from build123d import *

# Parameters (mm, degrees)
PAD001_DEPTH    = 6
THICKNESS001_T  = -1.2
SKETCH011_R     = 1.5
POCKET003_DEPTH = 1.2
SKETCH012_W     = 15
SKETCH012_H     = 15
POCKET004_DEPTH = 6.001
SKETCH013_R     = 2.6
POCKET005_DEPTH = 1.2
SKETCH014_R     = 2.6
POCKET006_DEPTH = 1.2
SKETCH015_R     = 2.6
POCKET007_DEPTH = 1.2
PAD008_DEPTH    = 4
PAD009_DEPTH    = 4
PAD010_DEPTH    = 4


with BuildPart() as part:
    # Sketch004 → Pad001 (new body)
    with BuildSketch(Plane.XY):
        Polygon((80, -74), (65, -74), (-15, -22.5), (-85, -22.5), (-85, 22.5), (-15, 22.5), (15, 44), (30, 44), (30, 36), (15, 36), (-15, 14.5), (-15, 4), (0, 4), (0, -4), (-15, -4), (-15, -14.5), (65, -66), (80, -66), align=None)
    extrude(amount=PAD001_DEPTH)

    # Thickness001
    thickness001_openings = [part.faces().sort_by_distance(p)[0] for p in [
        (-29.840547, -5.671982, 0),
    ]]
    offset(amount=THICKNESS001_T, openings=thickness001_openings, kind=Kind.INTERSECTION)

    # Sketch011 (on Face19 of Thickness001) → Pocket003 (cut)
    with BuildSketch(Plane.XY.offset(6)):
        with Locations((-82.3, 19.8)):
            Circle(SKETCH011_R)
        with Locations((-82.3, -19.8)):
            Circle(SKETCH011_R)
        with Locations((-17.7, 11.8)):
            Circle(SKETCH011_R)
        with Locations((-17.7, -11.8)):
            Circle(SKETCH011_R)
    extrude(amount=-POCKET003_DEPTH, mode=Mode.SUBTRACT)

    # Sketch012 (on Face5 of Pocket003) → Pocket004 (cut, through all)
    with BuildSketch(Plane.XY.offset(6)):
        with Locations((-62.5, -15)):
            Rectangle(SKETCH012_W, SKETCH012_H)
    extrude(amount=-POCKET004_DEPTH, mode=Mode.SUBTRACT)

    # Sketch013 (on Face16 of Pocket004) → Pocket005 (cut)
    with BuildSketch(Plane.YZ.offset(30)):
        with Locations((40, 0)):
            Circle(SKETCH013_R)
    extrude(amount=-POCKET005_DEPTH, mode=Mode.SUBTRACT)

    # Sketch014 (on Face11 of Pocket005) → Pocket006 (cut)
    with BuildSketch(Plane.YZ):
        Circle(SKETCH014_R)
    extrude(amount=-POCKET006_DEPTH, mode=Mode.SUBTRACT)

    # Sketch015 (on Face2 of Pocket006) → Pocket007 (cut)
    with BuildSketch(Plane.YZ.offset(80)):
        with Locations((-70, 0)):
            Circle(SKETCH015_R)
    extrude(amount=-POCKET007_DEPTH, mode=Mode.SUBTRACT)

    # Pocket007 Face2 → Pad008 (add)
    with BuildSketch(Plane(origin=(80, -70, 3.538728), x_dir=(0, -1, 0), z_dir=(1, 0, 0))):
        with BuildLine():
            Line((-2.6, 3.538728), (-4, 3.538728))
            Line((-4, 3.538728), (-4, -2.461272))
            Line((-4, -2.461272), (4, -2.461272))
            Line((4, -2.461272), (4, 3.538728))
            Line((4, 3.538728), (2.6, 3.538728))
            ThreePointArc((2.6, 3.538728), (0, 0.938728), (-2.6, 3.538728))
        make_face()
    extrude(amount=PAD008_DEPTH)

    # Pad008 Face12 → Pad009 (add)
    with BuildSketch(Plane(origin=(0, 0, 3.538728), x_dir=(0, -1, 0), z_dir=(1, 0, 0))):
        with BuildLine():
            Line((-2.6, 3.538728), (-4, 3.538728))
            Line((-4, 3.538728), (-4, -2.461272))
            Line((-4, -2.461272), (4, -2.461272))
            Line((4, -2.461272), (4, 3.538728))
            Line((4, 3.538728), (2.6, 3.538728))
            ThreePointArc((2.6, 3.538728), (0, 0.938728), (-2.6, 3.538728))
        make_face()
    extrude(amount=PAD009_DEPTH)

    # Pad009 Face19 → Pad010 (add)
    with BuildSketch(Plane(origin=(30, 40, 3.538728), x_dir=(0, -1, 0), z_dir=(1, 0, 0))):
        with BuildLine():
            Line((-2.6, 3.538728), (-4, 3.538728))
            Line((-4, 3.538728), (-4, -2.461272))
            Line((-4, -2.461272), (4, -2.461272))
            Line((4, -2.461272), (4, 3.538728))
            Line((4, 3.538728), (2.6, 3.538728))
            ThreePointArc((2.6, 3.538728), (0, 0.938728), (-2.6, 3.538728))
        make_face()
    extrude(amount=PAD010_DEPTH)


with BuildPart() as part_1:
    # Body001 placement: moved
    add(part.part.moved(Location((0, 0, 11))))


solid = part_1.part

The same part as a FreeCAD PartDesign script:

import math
import FreeCAD as App
import Part
import Sketcher

V = App.Vector


def faces_at(feature, points):
    """Names of the faces that lie closest to the given points."""
    faces = feature.Shape.Faces
    near = lambda p: min(range(len(faces)), key=lambda i: faces[i].distToShape(Part.Vertex(*p))[0])
    return sorted({f"Face{near(p) + 1}" for p in points})

doc = App.newDocument("Part")
body = doc.addObject("PartDesign::Body", "Body")

# Sketch on XY plane
sketch1 = doc.addObject("Sketcher::SketchObject", "Sketch")
body.addObject(sketch1)
sketch1.AttachmentSupport = (doc.XY_Plane, [""])
sketch1.MapMode = "FlatFace"
sketch1.addGeometry(Part.LineSegment(V(65, -74, 0), V(80, -74, 0)), False)
sketch1.addGeometry(Part.LineSegment(V(80, -74, 0), V(80, -66, 0)), False)
sketch1.addGeometry(Part.LineSegment(V(80, -66, 0), V(65, -66, 0)), False)
sketch1.addGeometry(Part.LineSegment(V(65, -66, 0), V(-15, -14, 0)), False)
sketch1.addGeometry(Part.LineSegment(V(-15, -14, 0), V(-15, -4, 0)), False)
sketch1.addGeometry(Part.LineSegment(V(-15, -4, 0), V(0, -4, 0)), False)
sketch1.addGeometry(Part.LineSegment(V(0, -4, 0), V(0, 4, 0)), False)
sketch1.addGeometry(Part.LineSegment(V(0, 4, 0), V(-15, 4, 0)), False)
sketch1.addGeometry(Part.LineSegment(V(-15, 4, 0), V(-15, 14, 0)), False)
sketch1.addGeometry(Part.LineSegment(V(-15, 14, 0), V(15, 36, 0)), False)
sketch1.addGeometry(Part.LineSegment(V(15, 36, 0), V(30, 36, 0)), False)
sketch1.addGeometry(Part.LineSegment(V(30, 36, 0), V(30, 44, 0)), False)
sketch1.addGeometry(Part.LineSegment(V(30, 44, 0), V(15, 44, 0)), False)
sketch1.addGeometry(Part.LineSegment(V(15, 44, 0), V(-15, 22, 0)), False)
sketch1.addGeometry(Part.LineSegment(V(-15, 22, 0), V(-85, 22, 0)), False)
sketch1.addGeometry(Part.LineSegment(V(-85, 22, 0), V(-85, -22, 0)), False)
sketch1.addGeometry(Part.LineSegment(V(-85, -22, 0), V(-15, -22, 0)), False)
sketch1.addGeometry(Part.LineSegment(V(-15, -22, 0), V(65, -74, 0)), False)
sketch1.addConstraint(Sketcher.Constraint("Coincident", 0, 2, 1, 1))
sketch1.addConstraint(Sketcher.Constraint("Coincident", 1, 2, 2, 1))
sketch1.addConstraint(Sketcher.Constraint("Coincident", 2, 2, 3, 1))
sketch1.addConstraint(Sketcher.Constraint("Coincident", 3, 2, 4, 1))
sketch1.addConstraint(Sketcher.Constraint("Coincident", 4, 2, 5, 1))
sketch1.addConstraint(Sketcher.Constraint("Coincident", 5, 2, 6, 1))
sketch1.addConstraint(Sketcher.Constraint("Coincident", 6, 2, 7, 1))
sketch1.addConstraint(Sketcher.Constraint("Coincident", 7, 2, 8, 1))
sketch1.addConstraint(Sketcher.Constraint("Coincident", 8, 2, 9, 1))
sketch1.addConstraint(Sketcher.Constraint("Coincident", 9, 2, 10, 1))
sketch1.addConstraint(Sketcher.Constraint("Coincident", 10, 2, 11, 1))
sketch1.addConstraint(Sketcher.Constraint("Coincident", 11, 2, 12, 1))
sketch1.addConstraint(Sketcher.Constraint("Coincident", 12, 2, 13, 1))
sketch1.addConstraint(Sketcher.Constraint("Coincident", 13, 2, 14, 1))
sketch1.addConstraint(Sketcher.Constraint("Coincident", 14, 2, 15, 1))
sketch1.addConstraint(Sketcher.Constraint("Coincident", 15, 2, 16, 1))
sketch1.addConstraint(Sketcher.Constraint("Coincident", 16, 2, 17, 1))
sketch1.addConstraint(Sketcher.Constraint("Coincident", 17, 2, 0, 1))
sketch1.addConstraint(Sketcher.Constraint("Horizontal", 0))
sketch1.addConstraint(Sketcher.Constraint("Vertical", 1))
sketch1.addConstraint(Sketcher.Constraint("Horizontal", 2))
sketch1.addConstraint(Sketcher.Constraint("Vertical", 4))
sketch1.addConstraint(Sketcher.Constraint("Horizontal", 5))
sketch1.addConstraint(Sketcher.Constraint("Vertical", 6))
sketch1.addConstraint(Sketcher.Constraint("Horizontal", 7))
sketch1.addConstraint(Sketcher.Constraint("Vertical", 8))
sketch1.addConstraint(Sketcher.Constraint("Horizontal", 10))
sketch1.addConstraint(Sketcher.Constraint("Vertical", 11))
sketch1.addConstraint(Sketcher.Constraint("Horizontal", 12))
sketch1.addConstraint(Sketcher.Constraint("Horizontal", 14))
sketch1.addConstraint(Sketcher.Constraint("Vertical", 15))
sketch1.addConstraint(Sketcher.Constraint("Horizontal", 16))
sketch1.addConstraint(Sketcher.Constraint("Symmetric", 5, 2, 6, 2, -1, 1))
sketch1.addConstraint(Sketcher.Constraint("Symmetric", 3, 2, 8, 2, -1))
sketch1.addConstraint(Sketcher.Constraint("Symmetric", 13, 2, 16, 2, -1))
sketch1.addConstraint(Sketcher.Constraint("Parallel", 9, 13))
sketch1.addConstraint(Sketcher.Constraint("Parallel", 3, 17))
sketch1.addConstraint(Sketcher.Constraint("Vertical", 9, 2, 12, 2))
sketch1.addConstraint(Sketcher.Constraint("Vertical", 8, 2, 13, 2))
sketch1.addConstraint(Sketcher.Constraint("Vertical", 2, 2, 17, 2))
sketch1.addConstraint(Sketcher.Constraint("Equal", 2, 5))
sketch1.addConstraint(Sketcher.Constraint("Equal", 7, 10))
sketch1.addConstraint(Sketcher.Constraint("Equal", 1, 6))
sketch1.addConstraint(Sketcher.Constraint("DistanceX", 0, 1, 0, 2, 15.0))
sketch1.addConstraint(Sketcher.Constraint("DistanceX", 14, 2, 14, 1, 70.0))
sketch1.addConstraint(Sketcher.Constraint("DistanceY", 1, 1, 1, 2, 8.0))
sketch1.addConstraint(Sketcher.Constraint("DistanceY", 15, 2, 15, 1, 45.0))
sketch1.addConstraint(Sketcher.Constraint("DistanceX", -1, 1, 0, 2, 80.0))
sketch1.addConstraint(Sketcher.Constraint("DistanceY", 0, 2, -1, 1, 74.0))
sketch1.addConstraint(Sketcher.Constraint("DistanceX", -1, 1, 9, 2, 15.0))
sketch1.addConstraint(Sketcher.Constraint("DistanceY", -1, 1, 9, 2, 36.0))
pad1 = doc.addObject("PartDesign::Pad", "Pad")
body.addObject(pad1)
pad1.Profile = sketch1
pad1.Length = 6
doc.recompute()

thickness = doc.addObject("PartDesign::Thickness", "Thickness")
body.addObject(thickness)
thickness.Base = (pad1, faces_at(pad1, [(-68.5, -15, 0)]))
thickness.Value = 1.2
thickness.Reversed = True
thickness.Join = "Intersection"

# Sketch on XY plane
sketch2 = doc.addObject("Sketcher::SketchObject", "Sketch001")
body.addObject(sketch2)
sketch2.AttachmentSupport = (doc.XY_Plane, [""])
sketch2.MapMode = "FlatFace"
sketch2.AttachmentOffset = App.Placement(V(0, 0, 6), App.Rotation())
sketch2.addGeometry(Part.Circle(V(-82.3, 19.8, 0), V(0, 0, 1), 1.5), False)
sketch2.addGeometry(Part.Circle(V(-82.3, -19.8, 0), V(0, 0, 1), 1.5), False)
sketch2.addGeometry(Part.Circle(V(-17.7, 11.8, 0), V(0, 0, 1), 1.5), False)
sketch2.addGeometry(Part.Circle(V(-17.7, -11.8, 0), V(0, 0, 1), 1.5), False)
sketch2.addConstraint(Sketcher.Constraint("Equal", 0, 1))
sketch2.addConstraint(Sketcher.Constraint("Equal", 1, 2))
sketch2.addConstraint(Sketcher.Constraint("Equal", 2, 3))
sketch2.addConstraint(Sketcher.Constraint("Symmetric", 0, 3, 1, 3, -1))
sketch2.addConstraint(Sketcher.Constraint("Symmetric", 2, 3, 3, 3, -1))
sketch2.addConstraint(Sketcher.Constraint("Diameter", 0, 3.0))
sketch2.addConstraint(Sketcher.Constraint("DistanceY", 2, 3, 0, 3, 8.0))
sketch2.addConstraint(Sketcher.Constraint("DistanceX", 0, 3, -1, 1, 82.3))
sketch2.addConstraint(Sketcher.Constraint("DistanceY", -1, 1, 0, 3, 19.8))
sketch2.addConstraint(Sketcher.Constraint("DistanceX", 2, 3, -1, 1, 17.7))
pocket1 = doc.addObject("PartDesign::Pocket", "Pocket")
body.addObject(pocket1)
pocket1.Profile = sketch2
pocket1.Length = 1.2

# Sketch on XY plane
sketch3 = doc.addObject("Sketcher::SketchObject", "Sketch002")
body.addObject(sketch3)
sketch3.AttachmentSupport = (doc.XY_Plane, [""])
sketch3.MapMode = "FlatFace"
sketch3.AttachmentOffset = App.Placement(V(0, 0, 6), App.Rotation())
sketch3.addGeometry(Part.LineSegment(V(-70, -8, 0), V(-70, -22, 0)), False)
sketch3.addGeometry(Part.LineSegment(V(-70, -22, 0), V(-55, -22, 0)), False)
sketch3.addGeometry(Part.LineSegment(V(-55, -22, 0), V(-55, -8, 0)), False)
sketch3.addGeometry(Part.LineSegment(V(-55, -8, 0), V(-70, -8, 0)), False)
sketch3.addConstraint(Sketcher.Constraint("Coincident", 0, 2, 1, 1))
sketch3.addConstraint(Sketcher.Constraint("Coincident", 1, 2, 2, 1))
sketch3.addConstraint(Sketcher.Constraint("Coincident", 2, 2, 3, 1))
sketch3.addConstraint(Sketcher.Constraint("Coincident", 3, 2, 0, 1))
sketch3.addConstraint(Sketcher.Constraint("Vertical", 0))
sketch3.addConstraint(Sketcher.Constraint("Horizontal", 1))
sketch3.addConstraint(Sketcher.Constraint("Vertical", 2))
sketch3.addConstraint(Sketcher.Constraint("Horizontal", 3))
sketch3.addConstraint(Sketcher.Constraint("Equal", 3, 0))
sketch3.addConstraint(Sketcher.Constraint("DistanceX", 1, 1, 1, 2, 15.0))
sketch3.addConstraint(Sketcher.Constraint("DistanceX", 0, 2, -1, 1, 70.0))
sketch3.addConstraint(Sketcher.Constraint("DistanceY", 0, 2, -1, 1, 22.5))
pocket2 = doc.addObject("PartDesign::Pocket", "Pocket001")
body.addObject(pocket2)
pocket2.Profile = sketch3
pocket2.Type = "ThroughAll"

# Sketch on YZ plane
sketch4 = doc.addObject("Sketcher::SketchObject", "Sketch003")
body.addObject(sketch4)
sketch4.AttachmentSupport = (doc.YZ_Plane, [""])
sketch4.MapMode = "FlatFace"
sketch4.AttachmentOffset = App.Placement(V(0, 0, 30), App.Rotation())
sketch4.addGeometry(Part.Circle(V(40, 0, 0), V(0, 0, 1), 2.6), False)
sketch4.addConstraint(Sketcher.Constraint("PointOnObject", 0, 3, -1))
sketch4.addConstraint(Sketcher.Constraint("Diameter", 0, 5.2))
sketch4.addConstraint(Sketcher.Constraint("DistanceX", -1, 1, 0, 3, 40.0))
pocket3 = doc.addObject("PartDesign::Pocket", "Pocket002")
body.addObject(pocket3)
pocket3.Profile = sketch4
pocket3.Length = 1.2

# Sketch on YZ plane
sketch5 = doc.addObject("Sketcher::SketchObject", "Sketch004")
body.addObject(sketch5)
sketch5.AttachmentSupport = (doc.YZ_Plane, [""])
sketch5.MapMode = "FlatFace"
sketch5.addGeometry(Part.Circle(V(0, 0, 0), V(0, 0, 1), 2.6), False)
sketch5.addConstraint(Sketcher.Constraint("Coincident", 0, 3, -1, 1))
sketch5.addConstraint(Sketcher.Constraint("Diameter", 0, 5.2))
pocket4 = doc.addObject("PartDesign::Pocket", "Pocket003")
body.addObject(pocket4)
pocket4.Profile = sketch5
pocket4.Length = 1.2

# Sketch on YZ plane
sketch6 = doc.addObject("Sketcher::SketchObject", "Sketch005")
body.addObject(sketch6)
sketch6.AttachmentSupport = (doc.YZ_Plane, [""])
sketch6.MapMode = "FlatFace"
sketch6.AttachmentOffset = App.Placement(V(0, 0, 80), App.Rotation())
sketch6.addGeometry(Part.Circle(V(-70, 0, 0), V(0, 0, 1), 2.6), False)
sketch6.addConstraint(Sketcher.Constraint("PointOnObject", 0, 3, -1))
sketch6.addConstraint(Sketcher.Constraint("Diameter", 0, 5.2))
sketch6.addConstraint(Sketcher.Constraint("DistanceX", 0, 3, -1, 1, 70.0))
pocket5 = doc.addObject("PartDesign::Pocket", "Pocket004")
body.addObject(pocket5)
pocket5.Profile = sketch6
pocket5.Length = 1.2

# Sketch on YZ plane
sketch7 = doc.addObject("Sketcher::SketchObject", "Sketch006")
body.addObject(sketch7)
sketch7.AttachmentSupport = (doc.YZ_Plane, [""])
sketch7.MapMode = "FlatFace"
sketch7.AttachmentOffset = App.Placement(V(0, 0, 80), App.Rotation())
sketch7.addGeometry(Part.LineSegment(V(-67.4, 0, 0), V(-66, 0, 0)), False)
sketch7.addGeometry(Part.LineSegment(V(-66, 0, 0), V(-66, 6, 0)), False)
sketch7.addGeometry(Part.LineSegment(V(-66, 6, 0), V(-74, 6, 0)), False)
sketch7.addGeometry(Part.LineSegment(V(-74, 6, 0), V(-74, 0, 0)), False)
sketch7.addGeometry(Part.LineSegment(V(-74, 0, 0), V(-72.6, 0, 0)), False)
sketch7.addGeometry(Part.ArcOfCircle(Part.Circle(V(-70, 0, 0), V(0, 0, 1), 2.6), math.radians(0), math.radians(180)), False)
sketch7.addConstraint(Sketcher.Constraint("Coincident", 0, 2, 1, 1))
sketch7.addConstraint(Sketcher.Constraint("Coincident", 1, 2, 2, 1))
sketch7.addConstraint(Sketcher.Constraint("Coincident", 2, 2, 3, 1))
sketch7.addConstraint(Sketcher.Constraint("Coincident", 3, 2, 4, 1))
sketch7.addConstraint(Sketcher.Constraint("Coincident", 4, 2, 5, 2))
sketch7.addConstraint(Sketcher.Constraint("Coincident", 5, 1, 0, 1))
sketch7.addConstraint(Sketcher.Constraint("Horizontal", 0))
sketch7.addConstraint(Sketcher.Constraint("Vertical", 1))
sketch7.addConstraint(Sketcher.Constraint("Horizontal", 2))
sketch7.addConstraint(Sketcher.Constraint("Vertical", 3))
sketch7.addConstraint(Sketcher.Constraint("Horizontal", 4))
sketch7.addConstraint(Sketcher.Constraint("PointOnObject", 5, 3, -1))
sketch7.addConstraint(Sketcher.Constraint("PointOnObject", 0, 2, -1))
sketch7.addConstraint(Sketcher.Constraint("PointOnObject", 3, 2, -1))
sketch7.addConstraint(Sketcher.Constraint("Equal", 0, 4))
sketch7.addConstraint(Sketcher.Constraint("Radius", 5, 2.6))
sketch7.addConstraint(Sketcher.Constraint("DistanceX", 2, 2, 2, 1, 8.0))
sketch7.addConstraint(Sketcher.Constraint("DistanceY", 1, 1, 1, 2, 6.0))
sketch7.addConstraint(Sketcher.Constraint("DistanceX", 5, 3, -1, 1, 70.0))
pad2 = doc.addObject("PartDesign::Pad", "Pad001")
body.addObject(pad2)
pad2.Profile = sketch7
pad2.Length = 4

# Sketch on YZ plane
sketch8 = doc.addObject("Sketcher::SketchObject", "Sketch007")
body.addObject(sketch8)
sketch8.AttachmentSupport = (doc.YZ_Plane, [""])
sketch8.MapMode = "FlatFace"
sketch8.addGeometry(Part.LineSegment(V(2.6, 0, 0), V(4, 0, 0)), False)
sketch8.addGeometry(Part.LineSegment(V(4, 0, 0), V(4, 6, 0)), False)
sketch8.addGeometry(Part.LineSegment(V(4, 6, 0), V(-4, 6, 0)), False)
sketch8.addGeometry(Part.LineSegment(V(-4, 6, 0), V(-4, 0, 0)), False)
sketch8.addGeometry(Part.LineSegment(V(-4, 0, 0), V(-2.6, 0, 0)), False)
sketch8.addGeometry(Part.ArcOfCircle(Part.Circle(V(0, 0, 0), V(0, 0, 1), 2.6), math.radians(0), math.radians(180)), False)
sketch8.addConstraint(Sketcher.Constraint("Coincident", 0, 2, 1, 1))
sketch8.addConstraint(Sketcher.Constraint("Coincident", 1, 2, 2, 1))
sketch8.addConstraint(Sketcher.Constraint("Coincident", 2, 2, 3, 1))
sketch8.addConstraint(Sketcher.Constraint("Coincident", 3, 2, 4, 1))
sketch8.addConstraint(Sketcher.Constraint("Coincident", 4, 2, 5, 2))
sketch8.addConstraint(Sketcher.Constraint("Coincident", 5, 1, 0, 1))
sketch8.addConstraint(Sketcher.Constraint("Horizontal", 0))
sketch8.addConstraint(Sketcher.Constraint("Vertical", 1))
sketch8.addConstraint(Sketcher.Constraint("Horizontal", 2))
sketch8.addConstraint(Sketcher.Constraint("Vertical", 3))
sketch8.addConstraint(Sketcher.Constraint("Horizontal", 4))
sketch8.addConstraint(Sketcher.Constraint("Coincident", 5, 3, -1, 1))
sketch8.addConstraint(Sketcher.Constraint("Symmetric", 0, 2, 3, 2, -1, 1))
sketch8.addConstraint(Sketcher.Constraint("PointOnObject", 0, 2, -1))
sketch8.addConstraint(Sketcher.Constraint("Radius", 5, 2.6))
sketch8.addConstraint(Sketcher.Constraint("DistanceX", 2, 2, 2, 1, 8.0))
sketch8.addConstraint(Sketcher.Constraint("DistanceY", 1, 1, 1, 2, 6.0))
pad3 = doc.addObject("PartDesign::Pad", "Pad002")
body.addObject(pad3)
pad3.Profile = sketch8
pad3.Length = 4

# Sketch on YZ plane
sketch9 = doc.addObject("Sketcher::SketchObject", "Sketch008")
body.addObject(sketch9)
sketch9.AttachmentSupport = (doc.YZ_Plane, [""])
sketch9.MapMode = "FlatFace"
sketch9.AttachmentOffset = App.Placement(V(0, 0, 30), App.Rotation())
sketch9.addGeometry(Part.LineSegment(V(42.6, 0, 0), V(44, 0, 0)), False)
sketch9.addGeometry(Part.LineSegment(V(44, 0, 0), V(44, 6, 0)), False)
sketch9.addGeometry(Part.LineSegment(V(44, 6, 0), V(36, 6, 0)), False)
sketch9.addGeometry(Part.LineSegment(V(36, 6, 0), V(36, 0, 0)), False)
sketch9.addGeometry(Part.LineSegment(V(36, 0, 0), V(37.4, 0, 0)), False)
sketch9.addGeometry(Part.ArcOfCircle(Part.Circle(V(40, 0, 0), V(0, 0, 1), 2.6), math.radians(0), math.radians(180)), False)
sketch9.addConstraint(Sketcher.Constraint("Coincident", 0, 2, 1, 1))
sketch9.addConstraint(Sketcher.Constraint("Coincident", 1, 2, 2, 1))
sketch9.addConstraint(Sketcher.Constraint("Coincident", 2, 2, 3, 1))
sketch9.addConstraint(Sketcher.Constraint("Coincident", 3, 2, 4, 1))
sketch9.addConstraint(Sketcher.Constraint("Coincident", 4, 2, 5, 2))
sketch9.addConstraint(Sketcher.Constraint("Coincident", 5, 1, 0, 1))
sketch9.addConstraint(Sketcher.Constraint("Horizontal", 0))
sketch9.addConstraint(Sketcher.Constraint("Vertical", 1))
sketch9.addConstraint(Sketcher.Constraint("Horizontal", 2))
sketch9.addConstraint(Sketcher.Constraint("Vertical", 3))
sketch9.addConstraint(Sketcher.Constraint("Horizontal", 4))
sketch9.addConstraint(Sketcher.Constraint("PointOnObject", 5, 3, -1))
sketch9.addConstraint(Sketcher.Constraint("PointOnObject", 0, 2, -1))
sketch9.addConstraint(Sketcher.Constraint("PointOnObject", 3, 2, -1))
sketch9.addConstraint(Sketcher.Constraint("Equal", 0, 4))
sketch9.addConstraint(Sketcher.Constraint("Radius", 5, 2.6))
sketch9.addConstraint(Sketcher.Constraint("DistanceX", 2, 2, 2, 1, 8.0))
sketch9.addConstraint(Sketcher.Constraint("DistanceY", 1, 1, 1, 2, 6.0))
sketch9.addConstraint(Sketcher.Constraint("DistanceX", -1, 1, 5, 3, 40.0))
pad4 = doc.addObject("PartDesign::Pad", "Pad003")
body.addObject(pad4)
pad4.Profile = sketch9
pad4.Length = 4
body2 = doc.addObject("PartDesign::Body", "Body001")
doc.recompute()

body.Placement = App.Placement(V(0, 0, 11), App.Rotation(V(0, 0, 1), 0))
boolean = doc.addObject("PartDesign::Boolean", "Boolean")
body2.addObject(boolean)
boolean.Type = "Fuse"
boolean.addObjects([body])

doc.recompute()
